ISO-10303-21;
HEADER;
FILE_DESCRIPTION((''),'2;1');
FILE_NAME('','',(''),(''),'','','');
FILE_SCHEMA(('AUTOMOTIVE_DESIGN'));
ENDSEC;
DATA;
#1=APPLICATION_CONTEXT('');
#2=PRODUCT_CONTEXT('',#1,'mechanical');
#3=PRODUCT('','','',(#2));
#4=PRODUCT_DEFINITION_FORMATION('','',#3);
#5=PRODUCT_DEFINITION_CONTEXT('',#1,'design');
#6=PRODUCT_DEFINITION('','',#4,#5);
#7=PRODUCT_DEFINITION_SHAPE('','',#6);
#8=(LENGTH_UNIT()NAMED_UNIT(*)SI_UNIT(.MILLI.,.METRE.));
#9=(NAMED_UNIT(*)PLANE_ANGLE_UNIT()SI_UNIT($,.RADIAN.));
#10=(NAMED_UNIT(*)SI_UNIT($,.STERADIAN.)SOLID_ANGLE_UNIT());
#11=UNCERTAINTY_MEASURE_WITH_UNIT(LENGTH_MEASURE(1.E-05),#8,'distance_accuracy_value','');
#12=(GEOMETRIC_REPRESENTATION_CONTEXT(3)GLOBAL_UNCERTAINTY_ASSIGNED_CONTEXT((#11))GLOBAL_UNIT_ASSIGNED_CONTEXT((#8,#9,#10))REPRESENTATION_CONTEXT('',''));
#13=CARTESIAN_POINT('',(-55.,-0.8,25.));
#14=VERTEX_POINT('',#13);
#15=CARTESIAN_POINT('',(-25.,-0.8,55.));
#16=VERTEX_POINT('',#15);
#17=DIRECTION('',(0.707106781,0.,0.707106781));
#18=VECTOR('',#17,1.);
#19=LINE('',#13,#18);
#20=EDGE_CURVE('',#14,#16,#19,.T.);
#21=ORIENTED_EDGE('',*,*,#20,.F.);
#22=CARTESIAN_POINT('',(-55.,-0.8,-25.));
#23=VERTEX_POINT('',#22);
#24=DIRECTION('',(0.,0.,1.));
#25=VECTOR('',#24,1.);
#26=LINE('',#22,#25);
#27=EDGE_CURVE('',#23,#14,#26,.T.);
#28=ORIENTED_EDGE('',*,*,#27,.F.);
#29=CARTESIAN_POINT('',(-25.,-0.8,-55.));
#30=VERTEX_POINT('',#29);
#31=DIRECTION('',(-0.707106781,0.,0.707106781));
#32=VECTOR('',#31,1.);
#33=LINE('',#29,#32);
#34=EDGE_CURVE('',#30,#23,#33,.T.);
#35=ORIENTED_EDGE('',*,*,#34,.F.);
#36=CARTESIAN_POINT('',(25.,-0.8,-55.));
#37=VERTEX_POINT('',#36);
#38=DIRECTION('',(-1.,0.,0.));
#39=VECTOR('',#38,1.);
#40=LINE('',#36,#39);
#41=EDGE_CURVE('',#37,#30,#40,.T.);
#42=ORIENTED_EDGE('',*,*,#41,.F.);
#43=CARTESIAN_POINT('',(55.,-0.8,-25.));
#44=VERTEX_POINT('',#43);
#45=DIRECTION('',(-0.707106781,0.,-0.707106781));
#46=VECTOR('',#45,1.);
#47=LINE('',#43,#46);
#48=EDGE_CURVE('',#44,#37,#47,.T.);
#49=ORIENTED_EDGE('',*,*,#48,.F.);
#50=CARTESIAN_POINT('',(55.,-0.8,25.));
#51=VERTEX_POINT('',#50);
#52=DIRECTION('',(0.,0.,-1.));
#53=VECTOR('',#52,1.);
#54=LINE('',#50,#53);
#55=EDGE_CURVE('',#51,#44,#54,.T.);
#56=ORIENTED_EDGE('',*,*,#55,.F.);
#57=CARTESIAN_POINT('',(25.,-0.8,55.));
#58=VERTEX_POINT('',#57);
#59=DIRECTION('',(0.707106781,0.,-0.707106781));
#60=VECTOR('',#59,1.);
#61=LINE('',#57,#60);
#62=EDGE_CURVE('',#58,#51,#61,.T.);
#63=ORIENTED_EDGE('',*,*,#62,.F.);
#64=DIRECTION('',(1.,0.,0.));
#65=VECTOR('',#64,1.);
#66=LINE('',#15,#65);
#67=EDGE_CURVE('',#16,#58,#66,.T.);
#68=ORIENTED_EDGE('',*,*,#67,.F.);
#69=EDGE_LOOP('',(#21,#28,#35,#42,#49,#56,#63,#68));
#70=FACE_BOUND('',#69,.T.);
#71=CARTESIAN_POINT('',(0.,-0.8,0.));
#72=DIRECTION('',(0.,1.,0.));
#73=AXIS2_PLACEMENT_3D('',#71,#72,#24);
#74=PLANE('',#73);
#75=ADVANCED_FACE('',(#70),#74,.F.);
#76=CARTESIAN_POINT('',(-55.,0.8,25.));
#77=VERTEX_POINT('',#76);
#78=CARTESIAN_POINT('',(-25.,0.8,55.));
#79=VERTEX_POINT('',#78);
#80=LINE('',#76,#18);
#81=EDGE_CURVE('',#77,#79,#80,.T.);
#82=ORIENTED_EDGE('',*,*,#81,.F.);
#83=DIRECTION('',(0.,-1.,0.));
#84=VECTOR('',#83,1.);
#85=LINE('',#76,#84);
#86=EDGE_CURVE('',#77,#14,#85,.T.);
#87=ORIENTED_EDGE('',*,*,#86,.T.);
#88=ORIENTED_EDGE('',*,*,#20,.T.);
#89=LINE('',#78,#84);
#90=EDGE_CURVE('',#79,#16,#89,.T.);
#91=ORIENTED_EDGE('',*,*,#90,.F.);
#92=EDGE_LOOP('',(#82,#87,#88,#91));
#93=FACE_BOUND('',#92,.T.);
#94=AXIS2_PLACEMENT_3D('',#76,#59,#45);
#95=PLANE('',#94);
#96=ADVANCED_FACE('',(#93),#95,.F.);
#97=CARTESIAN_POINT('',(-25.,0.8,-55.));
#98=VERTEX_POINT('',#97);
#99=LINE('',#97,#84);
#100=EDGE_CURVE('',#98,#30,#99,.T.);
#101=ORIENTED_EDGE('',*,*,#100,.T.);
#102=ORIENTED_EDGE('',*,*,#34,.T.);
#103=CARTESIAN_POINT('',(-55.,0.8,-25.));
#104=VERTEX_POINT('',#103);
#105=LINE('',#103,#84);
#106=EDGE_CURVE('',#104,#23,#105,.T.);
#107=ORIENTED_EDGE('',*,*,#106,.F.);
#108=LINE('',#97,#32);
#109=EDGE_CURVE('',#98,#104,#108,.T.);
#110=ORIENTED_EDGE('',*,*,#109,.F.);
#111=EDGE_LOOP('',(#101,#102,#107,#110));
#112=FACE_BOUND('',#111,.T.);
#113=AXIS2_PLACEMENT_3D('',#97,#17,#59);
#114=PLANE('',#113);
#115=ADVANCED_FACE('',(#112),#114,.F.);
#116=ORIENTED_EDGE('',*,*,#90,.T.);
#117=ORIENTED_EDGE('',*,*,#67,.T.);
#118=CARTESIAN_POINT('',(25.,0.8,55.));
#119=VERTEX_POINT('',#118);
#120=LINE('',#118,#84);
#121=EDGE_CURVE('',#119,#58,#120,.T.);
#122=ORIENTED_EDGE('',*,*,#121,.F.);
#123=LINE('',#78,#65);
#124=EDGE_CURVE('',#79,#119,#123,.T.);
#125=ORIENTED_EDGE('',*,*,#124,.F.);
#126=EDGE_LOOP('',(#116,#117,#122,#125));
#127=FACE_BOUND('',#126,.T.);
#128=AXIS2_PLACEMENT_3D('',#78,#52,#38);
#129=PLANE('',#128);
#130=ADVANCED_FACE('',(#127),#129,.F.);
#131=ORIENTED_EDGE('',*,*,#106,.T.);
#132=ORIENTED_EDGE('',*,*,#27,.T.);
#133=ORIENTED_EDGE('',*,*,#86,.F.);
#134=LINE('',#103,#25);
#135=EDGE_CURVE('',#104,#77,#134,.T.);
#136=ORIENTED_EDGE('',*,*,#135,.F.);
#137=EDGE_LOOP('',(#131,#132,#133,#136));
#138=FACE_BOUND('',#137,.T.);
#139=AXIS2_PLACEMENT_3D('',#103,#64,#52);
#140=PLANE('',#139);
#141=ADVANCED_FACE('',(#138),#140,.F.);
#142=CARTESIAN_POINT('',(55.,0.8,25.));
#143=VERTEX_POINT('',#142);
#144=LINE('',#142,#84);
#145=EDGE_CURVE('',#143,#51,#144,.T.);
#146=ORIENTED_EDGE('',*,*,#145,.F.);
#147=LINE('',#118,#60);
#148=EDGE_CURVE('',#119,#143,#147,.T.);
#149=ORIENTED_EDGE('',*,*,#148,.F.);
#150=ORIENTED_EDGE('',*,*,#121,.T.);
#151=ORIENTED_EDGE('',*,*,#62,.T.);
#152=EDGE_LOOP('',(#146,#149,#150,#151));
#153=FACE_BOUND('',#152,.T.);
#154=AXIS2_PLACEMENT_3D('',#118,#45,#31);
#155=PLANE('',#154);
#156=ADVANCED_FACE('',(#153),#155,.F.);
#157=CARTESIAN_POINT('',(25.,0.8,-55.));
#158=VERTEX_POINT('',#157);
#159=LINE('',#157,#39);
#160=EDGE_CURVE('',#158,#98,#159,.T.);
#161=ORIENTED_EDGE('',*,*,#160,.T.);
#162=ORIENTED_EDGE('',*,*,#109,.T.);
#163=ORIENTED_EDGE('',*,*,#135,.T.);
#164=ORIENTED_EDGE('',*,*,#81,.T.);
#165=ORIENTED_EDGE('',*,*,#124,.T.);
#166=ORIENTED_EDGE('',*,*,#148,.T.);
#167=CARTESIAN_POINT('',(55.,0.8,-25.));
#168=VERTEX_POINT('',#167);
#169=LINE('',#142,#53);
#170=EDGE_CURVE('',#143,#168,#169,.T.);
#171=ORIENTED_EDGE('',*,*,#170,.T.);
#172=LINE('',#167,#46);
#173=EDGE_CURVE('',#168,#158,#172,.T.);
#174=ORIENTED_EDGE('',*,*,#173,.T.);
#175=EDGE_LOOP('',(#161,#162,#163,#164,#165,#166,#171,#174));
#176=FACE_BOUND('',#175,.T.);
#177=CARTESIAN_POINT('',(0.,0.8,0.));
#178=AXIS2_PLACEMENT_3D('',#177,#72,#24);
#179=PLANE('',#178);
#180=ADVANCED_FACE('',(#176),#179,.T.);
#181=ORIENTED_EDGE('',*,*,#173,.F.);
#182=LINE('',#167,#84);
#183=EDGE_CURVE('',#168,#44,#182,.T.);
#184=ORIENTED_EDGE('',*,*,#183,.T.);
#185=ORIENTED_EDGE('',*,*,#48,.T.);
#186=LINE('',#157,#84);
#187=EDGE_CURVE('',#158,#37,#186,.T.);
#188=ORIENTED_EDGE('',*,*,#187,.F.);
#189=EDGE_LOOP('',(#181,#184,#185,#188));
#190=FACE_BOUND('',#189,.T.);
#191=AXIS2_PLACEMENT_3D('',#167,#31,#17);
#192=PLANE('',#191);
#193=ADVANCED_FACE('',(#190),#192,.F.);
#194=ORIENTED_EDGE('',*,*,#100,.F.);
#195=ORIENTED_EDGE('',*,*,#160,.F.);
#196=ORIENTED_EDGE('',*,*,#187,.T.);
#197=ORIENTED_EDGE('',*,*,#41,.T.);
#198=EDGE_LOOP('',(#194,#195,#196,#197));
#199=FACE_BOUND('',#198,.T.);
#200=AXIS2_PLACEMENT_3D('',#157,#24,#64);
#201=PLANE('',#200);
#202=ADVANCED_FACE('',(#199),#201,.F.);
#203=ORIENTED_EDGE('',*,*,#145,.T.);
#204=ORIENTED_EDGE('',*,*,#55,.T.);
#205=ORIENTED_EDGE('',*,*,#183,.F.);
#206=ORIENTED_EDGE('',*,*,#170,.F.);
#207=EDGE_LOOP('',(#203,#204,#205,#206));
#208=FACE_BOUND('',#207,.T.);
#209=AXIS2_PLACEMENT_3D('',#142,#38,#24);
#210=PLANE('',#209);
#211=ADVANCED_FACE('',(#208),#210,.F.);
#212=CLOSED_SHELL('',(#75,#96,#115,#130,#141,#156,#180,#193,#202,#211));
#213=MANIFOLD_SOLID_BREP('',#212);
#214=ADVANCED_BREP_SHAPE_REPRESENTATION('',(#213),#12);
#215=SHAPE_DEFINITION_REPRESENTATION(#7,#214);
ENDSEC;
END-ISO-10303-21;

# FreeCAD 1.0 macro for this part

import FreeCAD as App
import Part
import Sketcher


def add_polygon(sketch, points):
    """Adds a closed chain of lines whose ends are joined by coincident constraints."""
    first, n = sketch.GeometryCount, len(points)
    for a, b in zip(points, points[1:] + points[:1]):
        sketch.addGeometry(Part.LineSegment(App.Vector(*a, 0), App.Vector(*b, 0)), False)
    for i in range(n):
        sketch.addConstraint(Sketcher.Constraint("Coincident", first + i, 2, first + (i + 1) % n, 1))

doc = App.newDocument("Part")
body = doc.addObject("PartDesign::Body", "Body")

# Sketch on XZ plane
sketch1 = body.newObject("Sketcher::SketchObject", "Sketch")
sketch1.AttachmentSupport = (doc.getObject("XZ_Plane"), [""])
sketch1.MapMode = "FlatFace"
add_polygon(sketch1, [(-55, -25), (-55, 25), (-25, 55), (25, 55), (55, 25), (55, -25), (25, -55), (-25, -55)])  # lines 0-7
sketch1.addConstraint(Sketcher.Constraint("Vertical", 0))
sketch1.addConstraint(Sketcher.Constraint("Horizontal", 2))
sketch1.addConstraint(Sketcher.Constraint("Vertical", 4))
sketch1.addConstraint(Sketcher.Constraint("Horizontal", 6))
sketch1.addConstraint(Sketcher.Constraint("Symmetric", 0, 2, 4, 2, -1, 1))
sketch1.addConstraint(Sketcher.Constraint("Symmetric", 1, 2, 5, 2, -1, 1))
sketch1.addConstraint(Sketcher.Constraint("Perpendicular", 1, 3))
sketch1.addConstraint(Sketcher.Constraint("Perpendicular", 5, 7))
sketch1.addConstraint(Sketcher.Constraint("Horizontal", 0, 2, 3, 2))
sketch1.addConstraint(Sketcher.Constraint("Horizontal", 4, 2, 7, 2))
sketch1.addConstraint(Sketcher.Constraint("Vertical", 2, 2, 5, 2))
sketch1.addConstraint(Sketcher.Constraint("Equal", 6, 0))
sketch1.addConstraint(Sketcher.Constraint("DistanceX", 2, 1, 2, 2, 50.0))
sketch1.addConstraint(Sketcher.Constraint("DistanceX", 0, 2, -1, 1, 55.0))
pad1 = body.newObject("PartDesign::Pad", "Pad")
pad1.Profile = sketch1
pad1.Length = 1.6
pad1.Midplane = True

doc.recompute()
